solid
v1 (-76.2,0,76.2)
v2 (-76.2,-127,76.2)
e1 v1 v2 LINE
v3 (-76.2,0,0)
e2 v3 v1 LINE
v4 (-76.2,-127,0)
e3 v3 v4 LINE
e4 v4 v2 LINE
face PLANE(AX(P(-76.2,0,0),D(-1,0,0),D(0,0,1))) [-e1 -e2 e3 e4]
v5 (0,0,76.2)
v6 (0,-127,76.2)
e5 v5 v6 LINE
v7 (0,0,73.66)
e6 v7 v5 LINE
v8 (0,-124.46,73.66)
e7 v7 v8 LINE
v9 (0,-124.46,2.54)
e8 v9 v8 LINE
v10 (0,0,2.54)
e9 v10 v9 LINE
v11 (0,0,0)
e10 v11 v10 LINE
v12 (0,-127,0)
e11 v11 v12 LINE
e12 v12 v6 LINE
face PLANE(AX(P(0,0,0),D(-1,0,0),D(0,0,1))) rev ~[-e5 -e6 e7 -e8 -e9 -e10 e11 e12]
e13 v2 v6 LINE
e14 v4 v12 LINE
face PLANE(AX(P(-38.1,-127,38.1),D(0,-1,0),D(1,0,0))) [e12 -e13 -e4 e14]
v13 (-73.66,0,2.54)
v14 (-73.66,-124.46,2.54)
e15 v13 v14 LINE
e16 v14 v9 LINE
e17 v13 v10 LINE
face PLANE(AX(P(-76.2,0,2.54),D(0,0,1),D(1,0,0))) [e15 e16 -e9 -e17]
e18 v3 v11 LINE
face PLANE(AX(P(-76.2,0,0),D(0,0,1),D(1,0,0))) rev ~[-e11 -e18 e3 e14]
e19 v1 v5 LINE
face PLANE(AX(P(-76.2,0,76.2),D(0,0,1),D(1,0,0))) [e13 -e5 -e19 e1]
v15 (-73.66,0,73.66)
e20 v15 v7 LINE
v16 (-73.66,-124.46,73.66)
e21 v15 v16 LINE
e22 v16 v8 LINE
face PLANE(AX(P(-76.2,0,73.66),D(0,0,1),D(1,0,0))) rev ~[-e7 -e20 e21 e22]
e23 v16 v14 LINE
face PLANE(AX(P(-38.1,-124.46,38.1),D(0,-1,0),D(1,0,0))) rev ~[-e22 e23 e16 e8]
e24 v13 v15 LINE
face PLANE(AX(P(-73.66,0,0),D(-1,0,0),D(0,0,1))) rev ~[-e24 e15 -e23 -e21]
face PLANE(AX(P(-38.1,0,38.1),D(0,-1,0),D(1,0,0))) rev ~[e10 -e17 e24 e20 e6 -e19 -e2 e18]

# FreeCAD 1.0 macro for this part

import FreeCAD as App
import Part
import Sketcher
from FreeCAD import Vector
Q = App.Units.Quantity


def faces_at(feature, points):
    """Names of the faces that lie closest to the given points."""
    faces = feature.Shape.Faces
    near = lambda p: min(range(len(faces)), key=lambda i: faces[i].distToShape(Part.Vertex(*p))[0])
    return sorted({f"Face{near(p) + 1}" for p in points})


def add_polygon(sketch, points):
    """Adds a closed chain of lines whose ends are joined by coincident constraints."""
    first, n = sketch.GeometryCount, len(points)
    for a, b in zip(points, points[1:] + points[:1]):
        sketch.addGeometry(Part.LineSegment(App.Vector(*a, 0), App.Vector(*b, 0)), False)
    for i in range(n):
        sketch.addConstraint(Sketcher.Constraint("Coincident", first + i, 2, first + (i + 1) % n, 1))

doc = App.newDocument("Part")
body = doc.addObject("PartDesign::Body", "Body")

sketch1 = body.newObject("Sketcher::SketchObject", "Sketch")
sketch1.AttachmentSupport = (doc.getObject("XZ_Plane"), [""])
sketch1.MapMode = "FlatFace"
add_polygon(sketch1, [(-76.2, 76.2), (-76.2, 0), (0, 0), (0, 76.2)])
sketch1.addConstraint([
    Sketcher.Constraint("Vertical", 0),
    Sketcher.Constraint("Horizontal", 1),
    Sketcher.Constraint("Vertical", 2),
    Sketcher.Constraint("Horizontal", 3),
    Sketcher.Constraint("Coincident", 1, 2, -1, 1),
    Sketcher.Constraint("Equal", 3, 0),
    Sketcher.Constraint("DistanceX", 1, 1, 1, 2, Q("3 in")),
])
pad1 = body.newObject("PartDesign::Pad", "Pad")
pad1.Profile = sketch1
pad1.Length = Q("5 in")
doc.recompute()

thickness = body.newObject("PartDesign::Thickness", "Thickness")
thickness.Base = (pad1, faces_at(pad1, [(-38.1, 0, 38.1), (0, -63.5, 38.1)]))
thickness.Value = Q("0.1 in")
thickness.Reversed = True
thickness.Join = "Arc"

doc.recompute()
